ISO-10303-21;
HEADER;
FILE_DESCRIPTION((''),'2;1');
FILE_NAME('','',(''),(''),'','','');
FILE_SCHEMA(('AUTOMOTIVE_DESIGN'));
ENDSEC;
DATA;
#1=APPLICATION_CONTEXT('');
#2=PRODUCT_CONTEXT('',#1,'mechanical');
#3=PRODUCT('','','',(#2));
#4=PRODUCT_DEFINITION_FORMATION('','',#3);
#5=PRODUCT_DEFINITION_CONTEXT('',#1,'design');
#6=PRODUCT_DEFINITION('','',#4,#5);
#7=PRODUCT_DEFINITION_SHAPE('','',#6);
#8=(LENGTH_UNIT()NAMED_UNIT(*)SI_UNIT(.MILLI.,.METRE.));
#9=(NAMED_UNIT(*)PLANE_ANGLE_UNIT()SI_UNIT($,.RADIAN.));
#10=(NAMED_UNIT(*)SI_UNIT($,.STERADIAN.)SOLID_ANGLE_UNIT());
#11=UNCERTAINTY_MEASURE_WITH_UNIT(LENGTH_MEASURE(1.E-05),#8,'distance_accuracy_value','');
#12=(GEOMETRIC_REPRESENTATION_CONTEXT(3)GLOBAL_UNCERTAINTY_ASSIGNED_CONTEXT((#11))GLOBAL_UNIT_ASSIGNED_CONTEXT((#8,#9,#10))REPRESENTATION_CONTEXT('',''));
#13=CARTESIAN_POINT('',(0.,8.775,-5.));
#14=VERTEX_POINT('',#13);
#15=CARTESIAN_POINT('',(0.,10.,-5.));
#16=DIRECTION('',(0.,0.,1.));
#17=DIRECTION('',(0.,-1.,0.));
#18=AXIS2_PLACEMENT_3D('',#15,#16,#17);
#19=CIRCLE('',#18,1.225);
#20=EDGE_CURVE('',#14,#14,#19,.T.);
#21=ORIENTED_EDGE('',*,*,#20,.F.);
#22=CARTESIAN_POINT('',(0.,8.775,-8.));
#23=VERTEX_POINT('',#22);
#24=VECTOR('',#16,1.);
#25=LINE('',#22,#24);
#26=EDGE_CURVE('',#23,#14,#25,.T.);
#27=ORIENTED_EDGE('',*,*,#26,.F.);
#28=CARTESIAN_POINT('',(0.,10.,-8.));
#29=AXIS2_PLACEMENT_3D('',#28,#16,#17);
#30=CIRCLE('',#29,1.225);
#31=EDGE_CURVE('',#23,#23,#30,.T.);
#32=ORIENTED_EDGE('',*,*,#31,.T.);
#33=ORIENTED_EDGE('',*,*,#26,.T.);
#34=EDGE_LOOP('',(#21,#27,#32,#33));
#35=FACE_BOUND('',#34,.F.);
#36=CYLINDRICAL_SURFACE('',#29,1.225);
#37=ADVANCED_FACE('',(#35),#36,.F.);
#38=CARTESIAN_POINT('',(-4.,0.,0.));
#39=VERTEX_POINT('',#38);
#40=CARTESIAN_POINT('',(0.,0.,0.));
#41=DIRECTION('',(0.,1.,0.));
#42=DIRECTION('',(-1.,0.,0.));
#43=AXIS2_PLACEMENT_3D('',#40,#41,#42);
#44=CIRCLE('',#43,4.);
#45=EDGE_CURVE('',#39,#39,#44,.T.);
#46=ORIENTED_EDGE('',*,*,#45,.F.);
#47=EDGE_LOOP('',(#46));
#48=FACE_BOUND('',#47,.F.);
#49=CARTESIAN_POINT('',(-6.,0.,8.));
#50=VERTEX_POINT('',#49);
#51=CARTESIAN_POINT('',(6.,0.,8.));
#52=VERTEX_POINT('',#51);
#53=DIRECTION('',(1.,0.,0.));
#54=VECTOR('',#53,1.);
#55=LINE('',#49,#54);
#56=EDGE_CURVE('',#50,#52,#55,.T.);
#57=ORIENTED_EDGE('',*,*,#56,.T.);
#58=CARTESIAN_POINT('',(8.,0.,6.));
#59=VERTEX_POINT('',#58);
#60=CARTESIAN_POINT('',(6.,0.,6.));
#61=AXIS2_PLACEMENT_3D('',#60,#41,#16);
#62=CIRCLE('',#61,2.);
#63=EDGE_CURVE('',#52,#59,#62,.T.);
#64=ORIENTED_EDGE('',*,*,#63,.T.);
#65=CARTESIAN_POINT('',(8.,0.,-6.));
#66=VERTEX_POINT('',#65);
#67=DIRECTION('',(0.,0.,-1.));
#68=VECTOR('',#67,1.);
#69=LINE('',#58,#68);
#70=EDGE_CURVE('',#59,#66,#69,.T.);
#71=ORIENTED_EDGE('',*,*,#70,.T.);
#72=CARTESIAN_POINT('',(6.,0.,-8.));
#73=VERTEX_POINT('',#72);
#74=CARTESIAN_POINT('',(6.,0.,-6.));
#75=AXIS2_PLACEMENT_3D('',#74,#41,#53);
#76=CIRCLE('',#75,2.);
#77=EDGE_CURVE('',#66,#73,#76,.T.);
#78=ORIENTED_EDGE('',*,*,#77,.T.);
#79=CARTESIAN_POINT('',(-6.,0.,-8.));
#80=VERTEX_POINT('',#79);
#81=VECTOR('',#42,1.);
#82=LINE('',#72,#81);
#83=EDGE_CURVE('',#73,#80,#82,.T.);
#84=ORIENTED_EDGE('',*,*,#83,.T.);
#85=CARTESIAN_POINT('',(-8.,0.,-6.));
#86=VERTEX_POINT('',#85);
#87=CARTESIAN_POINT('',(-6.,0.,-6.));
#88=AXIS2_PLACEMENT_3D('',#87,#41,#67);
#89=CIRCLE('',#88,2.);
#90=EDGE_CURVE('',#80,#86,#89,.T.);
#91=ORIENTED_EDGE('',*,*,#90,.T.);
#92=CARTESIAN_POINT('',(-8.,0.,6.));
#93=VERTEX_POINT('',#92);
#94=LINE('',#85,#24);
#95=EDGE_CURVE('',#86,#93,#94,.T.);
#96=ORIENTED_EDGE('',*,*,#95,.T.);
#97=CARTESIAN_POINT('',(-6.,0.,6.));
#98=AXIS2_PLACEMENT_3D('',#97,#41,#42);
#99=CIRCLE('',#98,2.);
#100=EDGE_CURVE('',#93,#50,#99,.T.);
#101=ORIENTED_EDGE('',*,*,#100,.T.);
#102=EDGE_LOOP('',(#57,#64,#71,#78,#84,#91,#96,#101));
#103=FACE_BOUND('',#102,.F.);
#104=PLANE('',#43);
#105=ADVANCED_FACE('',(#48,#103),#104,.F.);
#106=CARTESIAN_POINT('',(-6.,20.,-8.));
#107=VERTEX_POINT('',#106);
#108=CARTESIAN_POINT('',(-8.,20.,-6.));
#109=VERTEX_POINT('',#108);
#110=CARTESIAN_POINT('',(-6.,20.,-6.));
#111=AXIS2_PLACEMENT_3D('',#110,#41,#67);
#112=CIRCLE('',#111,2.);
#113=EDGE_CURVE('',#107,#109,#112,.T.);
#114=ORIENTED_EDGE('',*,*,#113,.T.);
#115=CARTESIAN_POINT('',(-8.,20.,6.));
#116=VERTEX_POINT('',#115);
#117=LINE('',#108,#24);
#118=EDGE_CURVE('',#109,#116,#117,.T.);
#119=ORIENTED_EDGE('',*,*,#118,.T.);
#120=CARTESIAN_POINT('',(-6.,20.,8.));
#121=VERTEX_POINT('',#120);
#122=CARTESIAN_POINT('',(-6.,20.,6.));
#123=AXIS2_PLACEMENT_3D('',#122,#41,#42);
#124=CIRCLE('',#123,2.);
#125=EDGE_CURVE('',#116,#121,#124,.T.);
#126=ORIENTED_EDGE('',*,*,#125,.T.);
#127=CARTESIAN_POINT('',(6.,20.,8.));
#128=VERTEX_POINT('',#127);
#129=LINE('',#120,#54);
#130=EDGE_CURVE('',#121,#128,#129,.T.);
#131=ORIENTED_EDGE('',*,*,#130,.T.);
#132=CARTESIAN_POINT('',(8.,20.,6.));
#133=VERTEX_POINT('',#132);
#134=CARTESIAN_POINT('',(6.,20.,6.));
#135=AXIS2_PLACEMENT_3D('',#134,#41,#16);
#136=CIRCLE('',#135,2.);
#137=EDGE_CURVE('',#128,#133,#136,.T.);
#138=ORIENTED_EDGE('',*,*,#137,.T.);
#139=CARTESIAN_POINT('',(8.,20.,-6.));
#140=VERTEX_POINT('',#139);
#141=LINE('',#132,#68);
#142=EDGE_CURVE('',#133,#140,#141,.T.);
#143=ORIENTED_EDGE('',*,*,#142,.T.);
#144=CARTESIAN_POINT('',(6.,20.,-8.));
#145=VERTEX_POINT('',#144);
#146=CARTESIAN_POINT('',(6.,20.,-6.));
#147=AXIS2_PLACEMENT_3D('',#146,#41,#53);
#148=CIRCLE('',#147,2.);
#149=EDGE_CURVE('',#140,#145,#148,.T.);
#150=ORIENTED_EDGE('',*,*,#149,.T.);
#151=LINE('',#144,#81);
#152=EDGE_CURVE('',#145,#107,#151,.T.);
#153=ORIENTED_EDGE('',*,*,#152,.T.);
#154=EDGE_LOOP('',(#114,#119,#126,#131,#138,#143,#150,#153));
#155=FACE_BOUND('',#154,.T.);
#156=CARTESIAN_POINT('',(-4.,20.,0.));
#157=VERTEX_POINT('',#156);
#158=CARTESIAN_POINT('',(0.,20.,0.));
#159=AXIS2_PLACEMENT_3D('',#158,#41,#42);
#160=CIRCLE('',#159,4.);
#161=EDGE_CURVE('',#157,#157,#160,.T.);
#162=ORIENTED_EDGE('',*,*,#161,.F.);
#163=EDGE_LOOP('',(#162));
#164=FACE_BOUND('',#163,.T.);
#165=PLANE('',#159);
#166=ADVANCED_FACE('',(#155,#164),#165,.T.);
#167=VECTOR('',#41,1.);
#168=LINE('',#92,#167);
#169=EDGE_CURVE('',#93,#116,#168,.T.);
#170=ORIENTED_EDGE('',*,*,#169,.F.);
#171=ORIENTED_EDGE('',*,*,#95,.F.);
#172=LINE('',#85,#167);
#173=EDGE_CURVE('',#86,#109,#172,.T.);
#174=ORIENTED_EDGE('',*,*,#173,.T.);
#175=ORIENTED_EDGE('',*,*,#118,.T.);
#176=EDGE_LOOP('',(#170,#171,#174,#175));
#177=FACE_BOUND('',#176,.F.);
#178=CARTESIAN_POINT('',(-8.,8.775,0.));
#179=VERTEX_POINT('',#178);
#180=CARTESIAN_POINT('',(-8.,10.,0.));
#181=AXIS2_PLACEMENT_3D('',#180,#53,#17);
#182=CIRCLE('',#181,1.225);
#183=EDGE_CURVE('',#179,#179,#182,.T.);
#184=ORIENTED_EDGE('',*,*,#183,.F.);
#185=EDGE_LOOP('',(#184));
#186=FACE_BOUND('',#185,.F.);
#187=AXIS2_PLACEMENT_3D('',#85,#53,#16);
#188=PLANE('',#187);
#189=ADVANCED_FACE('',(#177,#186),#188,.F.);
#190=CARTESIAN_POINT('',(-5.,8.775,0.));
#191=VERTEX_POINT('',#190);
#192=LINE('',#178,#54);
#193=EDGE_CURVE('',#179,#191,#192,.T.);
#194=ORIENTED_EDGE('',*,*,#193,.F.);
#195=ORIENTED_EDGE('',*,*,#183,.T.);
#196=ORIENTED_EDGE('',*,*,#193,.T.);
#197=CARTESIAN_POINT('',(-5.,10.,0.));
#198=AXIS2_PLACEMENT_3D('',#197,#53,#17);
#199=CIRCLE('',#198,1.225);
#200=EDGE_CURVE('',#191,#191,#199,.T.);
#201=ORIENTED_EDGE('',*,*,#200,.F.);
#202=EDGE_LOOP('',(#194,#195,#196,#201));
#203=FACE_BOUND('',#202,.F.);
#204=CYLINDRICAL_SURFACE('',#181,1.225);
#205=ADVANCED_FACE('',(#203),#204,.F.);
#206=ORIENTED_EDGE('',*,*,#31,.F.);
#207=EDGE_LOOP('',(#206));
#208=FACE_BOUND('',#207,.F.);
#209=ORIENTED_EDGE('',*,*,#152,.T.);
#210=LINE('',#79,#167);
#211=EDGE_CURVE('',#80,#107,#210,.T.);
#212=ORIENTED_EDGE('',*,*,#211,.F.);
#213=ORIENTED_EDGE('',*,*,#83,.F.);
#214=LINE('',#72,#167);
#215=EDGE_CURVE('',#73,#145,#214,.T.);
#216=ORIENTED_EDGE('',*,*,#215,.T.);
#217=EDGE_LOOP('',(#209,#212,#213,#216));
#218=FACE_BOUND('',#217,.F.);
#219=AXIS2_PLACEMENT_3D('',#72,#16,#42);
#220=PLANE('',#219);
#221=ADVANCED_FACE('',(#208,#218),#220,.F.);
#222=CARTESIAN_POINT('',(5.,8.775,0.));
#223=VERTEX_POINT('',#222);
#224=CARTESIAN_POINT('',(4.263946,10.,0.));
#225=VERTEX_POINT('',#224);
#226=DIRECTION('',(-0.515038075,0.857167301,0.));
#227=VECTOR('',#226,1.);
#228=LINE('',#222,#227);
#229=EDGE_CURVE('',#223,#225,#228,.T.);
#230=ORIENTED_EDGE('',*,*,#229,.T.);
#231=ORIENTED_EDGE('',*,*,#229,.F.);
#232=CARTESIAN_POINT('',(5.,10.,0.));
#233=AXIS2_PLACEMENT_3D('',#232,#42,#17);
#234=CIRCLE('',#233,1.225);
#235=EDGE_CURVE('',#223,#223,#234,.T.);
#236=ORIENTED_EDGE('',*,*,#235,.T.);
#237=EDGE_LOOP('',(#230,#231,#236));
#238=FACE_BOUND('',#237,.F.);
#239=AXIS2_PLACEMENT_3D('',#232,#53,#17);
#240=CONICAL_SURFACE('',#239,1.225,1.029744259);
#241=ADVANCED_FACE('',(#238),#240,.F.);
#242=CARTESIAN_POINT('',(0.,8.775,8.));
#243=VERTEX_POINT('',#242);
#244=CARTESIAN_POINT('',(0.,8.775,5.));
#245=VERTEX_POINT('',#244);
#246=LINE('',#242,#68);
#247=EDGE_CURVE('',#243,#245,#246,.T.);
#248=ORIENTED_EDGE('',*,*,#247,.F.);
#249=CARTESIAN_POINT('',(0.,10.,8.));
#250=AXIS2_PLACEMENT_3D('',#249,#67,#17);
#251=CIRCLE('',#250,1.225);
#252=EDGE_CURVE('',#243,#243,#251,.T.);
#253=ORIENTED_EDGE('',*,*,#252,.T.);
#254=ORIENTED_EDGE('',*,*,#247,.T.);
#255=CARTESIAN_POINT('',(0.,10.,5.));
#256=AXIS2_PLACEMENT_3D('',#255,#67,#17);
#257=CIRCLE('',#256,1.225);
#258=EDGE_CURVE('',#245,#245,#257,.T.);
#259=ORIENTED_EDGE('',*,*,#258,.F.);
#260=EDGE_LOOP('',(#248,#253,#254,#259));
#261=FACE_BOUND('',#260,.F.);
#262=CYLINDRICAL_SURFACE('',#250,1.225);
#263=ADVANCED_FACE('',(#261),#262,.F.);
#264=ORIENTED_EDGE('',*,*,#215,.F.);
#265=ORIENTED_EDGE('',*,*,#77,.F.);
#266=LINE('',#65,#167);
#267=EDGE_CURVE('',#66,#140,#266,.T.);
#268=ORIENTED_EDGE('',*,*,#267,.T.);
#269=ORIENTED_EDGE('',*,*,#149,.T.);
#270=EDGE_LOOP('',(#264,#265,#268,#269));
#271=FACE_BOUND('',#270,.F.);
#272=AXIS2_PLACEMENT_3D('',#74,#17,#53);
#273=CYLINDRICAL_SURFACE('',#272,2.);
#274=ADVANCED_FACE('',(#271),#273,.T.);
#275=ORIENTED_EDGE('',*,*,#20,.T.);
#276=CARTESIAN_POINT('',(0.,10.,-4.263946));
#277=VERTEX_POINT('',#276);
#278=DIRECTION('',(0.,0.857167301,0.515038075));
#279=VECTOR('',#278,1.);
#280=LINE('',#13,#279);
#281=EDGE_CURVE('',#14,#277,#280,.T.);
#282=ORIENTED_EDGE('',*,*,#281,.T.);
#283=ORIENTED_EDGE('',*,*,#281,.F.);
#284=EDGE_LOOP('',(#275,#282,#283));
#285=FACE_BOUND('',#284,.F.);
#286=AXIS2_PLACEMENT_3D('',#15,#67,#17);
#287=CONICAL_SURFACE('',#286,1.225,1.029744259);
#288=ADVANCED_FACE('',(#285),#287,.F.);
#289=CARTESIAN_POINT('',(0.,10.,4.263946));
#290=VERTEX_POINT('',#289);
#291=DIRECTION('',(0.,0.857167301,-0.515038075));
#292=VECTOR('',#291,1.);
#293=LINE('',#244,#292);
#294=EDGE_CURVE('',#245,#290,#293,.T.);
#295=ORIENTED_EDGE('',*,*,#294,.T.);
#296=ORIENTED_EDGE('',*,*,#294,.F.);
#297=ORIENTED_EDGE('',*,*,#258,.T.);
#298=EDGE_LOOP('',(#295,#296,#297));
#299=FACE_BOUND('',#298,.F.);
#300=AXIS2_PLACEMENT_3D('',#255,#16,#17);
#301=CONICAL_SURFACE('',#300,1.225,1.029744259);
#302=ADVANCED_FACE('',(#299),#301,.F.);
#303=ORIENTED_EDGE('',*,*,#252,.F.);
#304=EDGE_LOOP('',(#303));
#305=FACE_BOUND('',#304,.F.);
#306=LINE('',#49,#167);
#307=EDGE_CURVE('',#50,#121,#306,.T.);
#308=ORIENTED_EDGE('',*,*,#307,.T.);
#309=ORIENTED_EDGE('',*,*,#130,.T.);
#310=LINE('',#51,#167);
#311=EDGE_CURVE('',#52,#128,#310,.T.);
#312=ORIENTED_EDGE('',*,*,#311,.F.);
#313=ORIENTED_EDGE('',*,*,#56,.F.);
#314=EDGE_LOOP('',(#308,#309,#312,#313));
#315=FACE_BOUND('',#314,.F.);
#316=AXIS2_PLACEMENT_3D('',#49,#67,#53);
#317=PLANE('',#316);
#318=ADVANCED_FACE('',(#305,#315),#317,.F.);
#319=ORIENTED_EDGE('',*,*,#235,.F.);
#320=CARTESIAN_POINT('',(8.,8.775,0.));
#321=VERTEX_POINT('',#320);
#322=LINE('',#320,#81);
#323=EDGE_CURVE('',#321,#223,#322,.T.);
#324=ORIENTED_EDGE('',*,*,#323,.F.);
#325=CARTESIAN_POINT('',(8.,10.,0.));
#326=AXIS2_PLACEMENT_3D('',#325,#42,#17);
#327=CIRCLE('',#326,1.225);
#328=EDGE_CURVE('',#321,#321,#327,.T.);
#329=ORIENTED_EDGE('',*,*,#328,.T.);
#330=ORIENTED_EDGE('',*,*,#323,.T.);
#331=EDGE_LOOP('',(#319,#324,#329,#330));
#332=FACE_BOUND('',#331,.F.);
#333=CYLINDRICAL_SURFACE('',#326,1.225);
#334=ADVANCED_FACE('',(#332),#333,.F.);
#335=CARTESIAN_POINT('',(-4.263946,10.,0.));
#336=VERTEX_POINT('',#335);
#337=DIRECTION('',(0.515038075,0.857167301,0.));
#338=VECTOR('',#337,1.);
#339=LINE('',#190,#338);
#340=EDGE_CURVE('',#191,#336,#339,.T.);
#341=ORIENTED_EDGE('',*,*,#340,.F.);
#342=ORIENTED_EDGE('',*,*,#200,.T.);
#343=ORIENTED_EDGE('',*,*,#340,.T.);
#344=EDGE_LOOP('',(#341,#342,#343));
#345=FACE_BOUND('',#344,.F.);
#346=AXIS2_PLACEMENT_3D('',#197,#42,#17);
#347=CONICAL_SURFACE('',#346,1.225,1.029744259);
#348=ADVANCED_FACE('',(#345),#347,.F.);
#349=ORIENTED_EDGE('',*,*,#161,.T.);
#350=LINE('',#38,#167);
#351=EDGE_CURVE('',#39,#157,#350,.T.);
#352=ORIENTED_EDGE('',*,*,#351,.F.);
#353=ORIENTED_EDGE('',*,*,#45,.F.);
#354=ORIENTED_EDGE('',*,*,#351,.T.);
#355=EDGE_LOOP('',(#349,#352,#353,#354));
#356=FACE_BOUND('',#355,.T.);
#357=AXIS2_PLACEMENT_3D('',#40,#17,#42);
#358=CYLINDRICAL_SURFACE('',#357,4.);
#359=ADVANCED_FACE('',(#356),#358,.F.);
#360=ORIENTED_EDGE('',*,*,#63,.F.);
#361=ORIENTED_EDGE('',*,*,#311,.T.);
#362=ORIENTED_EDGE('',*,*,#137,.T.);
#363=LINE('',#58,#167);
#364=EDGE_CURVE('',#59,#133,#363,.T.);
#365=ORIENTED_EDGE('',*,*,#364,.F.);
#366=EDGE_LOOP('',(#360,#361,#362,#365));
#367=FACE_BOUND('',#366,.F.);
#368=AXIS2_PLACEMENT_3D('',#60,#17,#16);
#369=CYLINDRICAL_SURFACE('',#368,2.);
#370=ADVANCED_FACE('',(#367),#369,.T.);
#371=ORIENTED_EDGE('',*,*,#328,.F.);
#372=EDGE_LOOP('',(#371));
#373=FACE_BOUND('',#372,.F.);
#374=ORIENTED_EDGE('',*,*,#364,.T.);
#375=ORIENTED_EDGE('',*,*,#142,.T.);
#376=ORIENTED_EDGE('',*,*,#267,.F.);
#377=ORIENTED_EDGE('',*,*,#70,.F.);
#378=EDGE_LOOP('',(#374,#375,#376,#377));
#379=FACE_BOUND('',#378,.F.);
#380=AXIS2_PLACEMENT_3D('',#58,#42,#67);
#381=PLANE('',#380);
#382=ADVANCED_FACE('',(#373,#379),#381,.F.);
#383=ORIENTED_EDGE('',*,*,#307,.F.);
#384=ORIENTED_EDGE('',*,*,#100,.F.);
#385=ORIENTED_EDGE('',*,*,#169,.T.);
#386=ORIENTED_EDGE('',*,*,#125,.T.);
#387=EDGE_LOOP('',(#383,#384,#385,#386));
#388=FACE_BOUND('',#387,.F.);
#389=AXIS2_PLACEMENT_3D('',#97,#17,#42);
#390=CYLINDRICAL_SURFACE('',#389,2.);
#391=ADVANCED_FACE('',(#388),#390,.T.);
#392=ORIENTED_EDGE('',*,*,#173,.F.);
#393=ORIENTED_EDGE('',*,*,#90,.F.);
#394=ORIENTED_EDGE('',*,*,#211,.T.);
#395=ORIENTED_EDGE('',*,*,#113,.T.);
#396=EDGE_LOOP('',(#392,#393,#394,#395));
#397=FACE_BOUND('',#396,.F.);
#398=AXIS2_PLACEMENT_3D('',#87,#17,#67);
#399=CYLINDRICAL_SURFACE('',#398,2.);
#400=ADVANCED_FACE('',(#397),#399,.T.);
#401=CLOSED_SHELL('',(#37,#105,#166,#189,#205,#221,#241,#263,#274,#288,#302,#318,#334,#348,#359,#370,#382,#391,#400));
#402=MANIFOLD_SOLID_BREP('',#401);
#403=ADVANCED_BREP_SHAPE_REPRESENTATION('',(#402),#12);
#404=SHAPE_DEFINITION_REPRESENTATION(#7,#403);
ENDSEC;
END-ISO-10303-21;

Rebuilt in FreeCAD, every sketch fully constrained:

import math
import FreeCAD as App
import Part
import Sketcher

V = App.Vector
Q = App.Units.Quantity

doc = App.newDocument("Part")
body = doc.addObject("PartDesign::Body", "Body")

sketch1 = doc.addObject("Sketcher::SketchObject", "Sketch")
body.addObject(sketch1)
sketch1.AttachmentSupport = (doc.XZ_Plane, [""])
sketch1.MapMode = "FlatFace"
sketch1.addGeometry([
    Part.ArcOfCircle(Part.Circle(V(-6, 6, 0), V(0, 0, 1), 2), math.radians(90), math.radians(180)),
    Part.LineSegment(V(-6, 8, 0), V(6, 8, 0)),
    Part.ArcOfCircle(Part.Circle(V(6, 6, 0), V(0, 0, 1), 2), math.radians(0), math.radians(90)),
    Part.LineSegment(V(8, 6, 0), V(8, -6, 0)),
    Part.ArcOfCircle(Part.Circle(V(6, -6, 0), V(0, 0, 1), 2), math.radians(-90), math.radians(0)),
    Part.LineSegment(V(6, -8, 0), V(-6, -8, 0)),
    Part.ArcOfCircle(Part.Circle(V(-6, -6, 0), V(0, 0, 1), 2), math.radians(180), math.radians(270)),
    Part.LineSegment(V(-8, -6, 0), V(-8, 6, 0)),
    Part.Circle(V(0, 0, 0), V(0, 0, 1), 4),
], False)
sketch1.addConstraint([
    Sketcher.Constraint("Tangent", 0, 1, 1, 1),
    Sketcher.Constraint("Tangent", 1, 2, 2, 2),
    Sketcher.Constraint("Tangent", 2, 1, 3, 1),
    Sketcher.Constraint("Tangent", 3, 2, 4, 2),
    Sketcher.Constraint("Tangent", 4, 1, 5, 1),
    Sketcher.Constraint("Tangent", 5, 2, 6, 2),
    Sketcher.Constraint("Tangent", 6, 1, 7, 1),
    Sketcher.Constraint("Tangent", 7, 2, 0, 2),
    Sketcher.Constraint("Horizontal", 1),
    Sketcher.Constraint("Vertical", 3),
    Sketcher.Constraint("Horizontal", 5),
    Sketcher.Constraint("Vertical", 7),
    Sketcher.Constraint("Coincident", 8, 3, -1, 1),
    Sketcher.Constraint("Equal", 0, 2),
    Sketcher.Constraint("Equal", 2, 4),
    Sketcher.Constraint("Equal", 4, 6),
    Sketcher.Constraint("Symmetric", 0, 3, 4, 3, -1, 1),
    Sketcher.Constraint("Equal", 5, 3),
    Sketcher.Constraint("Diameter", 8, Q("8 mm")),
    Sketcher.Constraint("Radius", 0, Q("2 mm")),
    Sketcher.Constraint("DistanceY", -1, 1, 0, 1, Q("8 mm")),
])
pad1 = doc.addObject("PartDesign::Pad", "Pad")
body.addObject(pad1)
pad1.Profile = sketch1
pad1.Length = 20
pad1.Reversed = True

sketch2 = doc.addObject("Sketcher::SketchObject", "Sketch001")
body.addObject(sketch2)
sketch2.AttachmentSupport = (doc.XY_Plane, [""])
sketch2.MapMode = "FlatFace"
sketch2.AttachmentOffset = App.Placement(V(0, 0, 8), App.Rotation())
sketch2.addGeometry(Part.Circle(V(0, 10, 0), V(0, 0, 1), 1.2), False)
sketch2.addConstraint([
    Sketcher.Constraint("PointOnObject", 0, 3, -2),
    Sketcher.Constraint("Diameter", 0, Q("2.45 mm")),
    Sketcher.Constraint("DistanceY", -1, 1, 0, 3, Q("10 mm")),
])
doc.recompute()
hole = doc.addObject("PartDesign::Hole", "Hole")
body.addObject(hole)
hole.Profile = sketch2
hole.ThreadType = "None"
hole.Diameter = 2.45
hole.DepthType = "Dimension"
hole.Depth = 3
hole.DrillPoint = "Angled"
hole.DrillPointAngle = 118
doc.recompute()

polarpattern = doc.addObject("PartDesign::PolarPattern", "PolarPattern")
body.addObject(polarpattern)
polarpattern.Originals = [hole]
polarpattern.Axis = (doc.Y_Axis, [""])
polarpattern.Angle = 360
polarpattern.Occurrences = 4
body.Tip = polarpattern

doc.recompute()
